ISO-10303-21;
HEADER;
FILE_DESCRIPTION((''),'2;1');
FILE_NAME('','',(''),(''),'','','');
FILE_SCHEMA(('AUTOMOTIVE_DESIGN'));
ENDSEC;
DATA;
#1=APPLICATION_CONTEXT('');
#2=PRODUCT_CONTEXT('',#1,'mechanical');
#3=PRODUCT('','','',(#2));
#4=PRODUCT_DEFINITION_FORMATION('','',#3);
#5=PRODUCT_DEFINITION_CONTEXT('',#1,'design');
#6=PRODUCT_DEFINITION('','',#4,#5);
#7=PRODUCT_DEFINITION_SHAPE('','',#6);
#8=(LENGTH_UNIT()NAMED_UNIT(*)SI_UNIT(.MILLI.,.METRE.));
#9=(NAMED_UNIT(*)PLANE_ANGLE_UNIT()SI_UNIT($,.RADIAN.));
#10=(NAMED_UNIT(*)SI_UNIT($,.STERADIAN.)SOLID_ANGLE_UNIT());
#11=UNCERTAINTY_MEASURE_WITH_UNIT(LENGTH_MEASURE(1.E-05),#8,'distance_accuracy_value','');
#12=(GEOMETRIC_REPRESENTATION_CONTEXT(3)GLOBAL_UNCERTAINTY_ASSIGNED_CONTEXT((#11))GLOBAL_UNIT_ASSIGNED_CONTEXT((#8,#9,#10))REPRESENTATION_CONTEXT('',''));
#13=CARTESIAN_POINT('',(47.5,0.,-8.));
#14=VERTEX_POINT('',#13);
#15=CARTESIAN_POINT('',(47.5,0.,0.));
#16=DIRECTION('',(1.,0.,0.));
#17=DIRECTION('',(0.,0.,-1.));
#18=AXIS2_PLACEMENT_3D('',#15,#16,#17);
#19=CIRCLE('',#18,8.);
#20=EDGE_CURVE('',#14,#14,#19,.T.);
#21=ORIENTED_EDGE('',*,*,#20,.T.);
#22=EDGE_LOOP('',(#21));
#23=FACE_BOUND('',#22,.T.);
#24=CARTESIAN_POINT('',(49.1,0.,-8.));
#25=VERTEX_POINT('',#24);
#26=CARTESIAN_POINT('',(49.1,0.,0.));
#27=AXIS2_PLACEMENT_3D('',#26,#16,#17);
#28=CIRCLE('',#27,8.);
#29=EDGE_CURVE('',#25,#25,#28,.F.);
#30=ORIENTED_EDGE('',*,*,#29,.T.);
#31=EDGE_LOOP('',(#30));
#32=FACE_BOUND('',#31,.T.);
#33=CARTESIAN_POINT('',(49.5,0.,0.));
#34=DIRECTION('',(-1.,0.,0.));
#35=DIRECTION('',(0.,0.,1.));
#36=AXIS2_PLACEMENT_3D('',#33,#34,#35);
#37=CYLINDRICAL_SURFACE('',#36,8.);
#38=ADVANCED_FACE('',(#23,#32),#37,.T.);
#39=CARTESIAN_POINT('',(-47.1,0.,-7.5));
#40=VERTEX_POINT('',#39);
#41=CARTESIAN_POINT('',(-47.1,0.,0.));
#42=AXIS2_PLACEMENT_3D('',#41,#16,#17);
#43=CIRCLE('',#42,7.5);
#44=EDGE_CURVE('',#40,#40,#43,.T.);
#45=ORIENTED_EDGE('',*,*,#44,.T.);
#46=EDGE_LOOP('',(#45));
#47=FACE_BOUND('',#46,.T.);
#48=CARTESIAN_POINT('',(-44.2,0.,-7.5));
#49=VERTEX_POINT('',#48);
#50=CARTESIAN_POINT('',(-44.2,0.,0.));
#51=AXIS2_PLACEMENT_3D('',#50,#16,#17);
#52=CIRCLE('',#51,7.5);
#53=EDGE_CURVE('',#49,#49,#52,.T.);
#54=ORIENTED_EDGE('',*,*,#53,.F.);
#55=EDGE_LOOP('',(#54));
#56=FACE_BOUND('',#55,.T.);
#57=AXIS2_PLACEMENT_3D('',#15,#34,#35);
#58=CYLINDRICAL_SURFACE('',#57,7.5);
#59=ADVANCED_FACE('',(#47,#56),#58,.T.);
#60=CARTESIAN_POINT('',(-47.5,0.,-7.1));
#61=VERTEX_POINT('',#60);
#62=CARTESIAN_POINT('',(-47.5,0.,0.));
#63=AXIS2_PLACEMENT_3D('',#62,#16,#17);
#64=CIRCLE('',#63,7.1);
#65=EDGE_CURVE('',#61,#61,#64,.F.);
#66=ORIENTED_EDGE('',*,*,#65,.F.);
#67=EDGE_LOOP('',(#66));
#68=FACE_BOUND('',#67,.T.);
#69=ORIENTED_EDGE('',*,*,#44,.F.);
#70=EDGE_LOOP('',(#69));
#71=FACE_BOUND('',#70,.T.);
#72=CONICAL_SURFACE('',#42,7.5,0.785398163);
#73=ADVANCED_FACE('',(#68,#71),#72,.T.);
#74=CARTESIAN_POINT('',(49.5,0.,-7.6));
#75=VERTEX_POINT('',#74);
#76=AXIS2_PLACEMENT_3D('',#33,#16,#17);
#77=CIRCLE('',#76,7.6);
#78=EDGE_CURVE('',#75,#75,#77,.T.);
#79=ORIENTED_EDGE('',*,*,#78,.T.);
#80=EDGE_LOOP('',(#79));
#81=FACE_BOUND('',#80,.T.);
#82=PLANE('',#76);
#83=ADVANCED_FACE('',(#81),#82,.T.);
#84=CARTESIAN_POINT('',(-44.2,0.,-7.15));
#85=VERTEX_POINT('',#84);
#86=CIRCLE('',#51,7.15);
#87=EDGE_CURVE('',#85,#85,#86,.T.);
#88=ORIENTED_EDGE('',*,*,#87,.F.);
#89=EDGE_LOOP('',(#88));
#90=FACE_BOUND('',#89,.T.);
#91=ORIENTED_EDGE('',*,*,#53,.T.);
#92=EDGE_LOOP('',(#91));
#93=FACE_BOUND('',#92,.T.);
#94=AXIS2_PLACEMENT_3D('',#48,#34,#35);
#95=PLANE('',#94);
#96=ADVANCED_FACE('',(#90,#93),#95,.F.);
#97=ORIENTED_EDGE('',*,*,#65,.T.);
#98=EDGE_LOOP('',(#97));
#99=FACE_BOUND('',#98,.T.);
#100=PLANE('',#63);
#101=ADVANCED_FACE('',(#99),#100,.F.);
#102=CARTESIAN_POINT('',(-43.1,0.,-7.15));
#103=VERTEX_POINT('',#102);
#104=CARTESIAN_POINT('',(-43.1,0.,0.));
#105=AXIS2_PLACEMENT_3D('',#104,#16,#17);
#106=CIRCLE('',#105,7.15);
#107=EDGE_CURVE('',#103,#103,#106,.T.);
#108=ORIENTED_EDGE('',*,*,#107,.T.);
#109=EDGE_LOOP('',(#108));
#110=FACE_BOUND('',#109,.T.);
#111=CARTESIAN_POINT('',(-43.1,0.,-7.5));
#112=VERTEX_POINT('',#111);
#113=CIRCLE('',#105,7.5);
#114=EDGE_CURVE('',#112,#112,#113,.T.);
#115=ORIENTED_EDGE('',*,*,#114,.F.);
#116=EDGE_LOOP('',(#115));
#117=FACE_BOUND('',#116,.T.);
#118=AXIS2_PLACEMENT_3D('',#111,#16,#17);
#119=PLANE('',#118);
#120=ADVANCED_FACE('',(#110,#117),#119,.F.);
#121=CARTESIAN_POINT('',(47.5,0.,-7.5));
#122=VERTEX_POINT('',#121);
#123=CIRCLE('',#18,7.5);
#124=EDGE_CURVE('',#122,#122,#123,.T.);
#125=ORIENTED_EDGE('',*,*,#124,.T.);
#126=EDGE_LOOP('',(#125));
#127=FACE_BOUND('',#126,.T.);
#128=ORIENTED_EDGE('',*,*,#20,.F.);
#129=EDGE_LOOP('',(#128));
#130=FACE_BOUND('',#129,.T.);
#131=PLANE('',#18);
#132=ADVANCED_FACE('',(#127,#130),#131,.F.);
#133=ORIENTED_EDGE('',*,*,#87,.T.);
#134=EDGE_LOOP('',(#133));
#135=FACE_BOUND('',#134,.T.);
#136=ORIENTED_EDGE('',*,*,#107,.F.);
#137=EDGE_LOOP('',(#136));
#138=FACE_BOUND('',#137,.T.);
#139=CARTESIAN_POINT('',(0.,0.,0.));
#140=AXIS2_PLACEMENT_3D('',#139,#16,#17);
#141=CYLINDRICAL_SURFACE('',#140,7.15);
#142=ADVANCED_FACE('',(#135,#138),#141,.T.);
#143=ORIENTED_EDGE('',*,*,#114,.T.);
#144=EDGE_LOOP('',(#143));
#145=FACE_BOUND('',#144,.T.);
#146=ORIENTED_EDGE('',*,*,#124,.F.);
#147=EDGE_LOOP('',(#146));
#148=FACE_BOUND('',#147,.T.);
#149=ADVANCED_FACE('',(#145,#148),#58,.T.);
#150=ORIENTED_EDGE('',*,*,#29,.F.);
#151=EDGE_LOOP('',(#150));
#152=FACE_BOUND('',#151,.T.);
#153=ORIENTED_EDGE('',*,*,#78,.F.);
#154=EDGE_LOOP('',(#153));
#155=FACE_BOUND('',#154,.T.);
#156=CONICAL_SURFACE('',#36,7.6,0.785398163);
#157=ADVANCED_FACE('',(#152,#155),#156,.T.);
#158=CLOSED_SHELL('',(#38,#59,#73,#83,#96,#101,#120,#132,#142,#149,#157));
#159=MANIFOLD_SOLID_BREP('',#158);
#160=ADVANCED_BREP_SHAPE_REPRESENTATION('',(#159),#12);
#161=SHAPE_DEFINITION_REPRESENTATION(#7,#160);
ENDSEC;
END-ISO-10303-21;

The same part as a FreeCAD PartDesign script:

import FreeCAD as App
import Part
import Sketcher
Q = App.Units.Quantity


def edges_at(feature, points):
    """Names of the edges that pass closest to the given points."""
    edges = feature.Shape.Edges
    near = lambda p: min(range(len(edges)), key=lambda i: edges[i].distToShape(Part.Vertex(*p))[0])
    return sorted({f"Edge{near(p) + 1}" for p in points})

doc = App.newDocument("Part")
params = doc.addObject("Spreadsheet::Sheet", "Params")
for row, (alias, value) in enumerate([
    ("sketch1_diameter", "15 mm"),
    ("pad1_length", "95 mm"),
    ("sketch2_diameter", "16 mm"),
    ("pad2_length", "2 mm"),
    ("sketch3_width", "1.1 mm"),
    ("sketch3_height", "0.35 mm"),
    ("groove_angle", "360 deg"),
    ("chamfer_size", "0.4 mm"),
], start=1):
    params.set(f"A{row}", alias)
    params.set(f"B{row}", "=" + value)
    params.setAlias(f"B{row}", alias)

body = doc.addObject("PartDesign::Body", "Body")

sketch1 = body.newObject("Sketcher::SketchObject", "Sketch")
sketch1.AttachmentSupport = (doc.getObject("YZ_Plane"), [""])
sketch1.MapMode = "FlatFace"
sketch1.addGeometry(Part.Circle(App.Vector(0, 0, 0), App.Vector(0, 0, 1), 8), False)
sketch1.addConstraint(Sketcher.Constraint("Coincident", 0, 3, -1, 1))
sketch1.addConstraint(Sketcher.Constraint("Diameter", 0, Q("15 mm")))
sketch1.setExpression("Constraints[1]", "Params.sketch1_diameter")
pad1 = body.newObject("PartDesign::Pad", "Pad")
pad1.Profile = sketch1
pad1.setExpression("Length", "Params.pad1_length")
pad1.Midplane = True

sketch2 = body.newObject("Sketcher::SketchObject", "Sketch001")
sketch2.AttachmentSupport = (doc.getObject("YZ_Plane"), [""])
sketch2.MapMode = "FlatFace"
sketch2.AttachmentOffset = App.Placement(App.Vector(0, 0, 47.5), App.Rotation())
sketch2.addGeometry(Part.Circle(App.Vector(0, 0, 0), App.Vector(0, 0, 1), 8), False)
sketch2.addConstraint(Sketcher.Constraint("Coincident", 0, 3, -1, 1))
sketch2.addConstraint(Sketcher.Constraint("Diameter", 0, Q("16 mm")))
sketch2.setExpression("Constraints[1]", "Params.sketch2_diameter")
pad2 = body.newObject("PartDesign::Pad", "Pad001")
pad2.Profile = sketch2
pad2.setExpression("Length", "Params.pad2_length")

sketch3 = body.newObject("Sketcher::SketchObject", "Sketch002")
sketch3.AttachmentSupport = (doc.getObject("XZ_Plane"), [""])
sketch3.MapMode = "FlatFace"
sketch3.addGeometry(Part.LineSegment(App.Vector(-44.2, -7.5, 0), App.Vector(-44.2, -7.15, 0)), False)
sketch3.addGeometry(Part.LineSegment(App.Vector(-44.2, -7.15, 0), App.Vector(-43.1, -7.15, 0)), False)
sketch3.addGeometry(Part.LineSegment(App.Vector(-43.1, -7.15, 0), App.Vector(-43.1, -7.5, 0)), False)
sketch3.addGeometry(Part.LineSegment(App.Vector(-43.1, -7.5, 0), App.Vector(-44.2, -7.5, 0)), False)
sketch3.addConstraint(Sketcher.Constraint("Coincident", 0, 2, 1, 1))
sketch3.addConstraint(Sketcher.Constraint("Coincident", 1, 2, 2, 1))
sketch3.addConstraint(Sketcher.Constraint("Coincident", 2, 2, 3, 1))
sketch3.addConstraint(Sketcher.Constraint("Coincident", 3, 2, 0, 1))
sketch3.addConstraint(Sketcher.Constraint("Vertical", 0))
sketch3.addConstraint(Sketcher.Constraint("Horizontal", 1))
sketch3.addConstraint(Sketcher.Constraint("Vertical", 2))
sketch3.addConstraint(Sketcher.Constraint("Horizontal", 3))
sketch3.addConstraint(Sketcher.Constraint("DistanceX", 1, 1, 1, 2, Q("1.1 mm")))
sketch3.addConstraint(Sketcher.Constraint("DistanceY", 0, 1, 0, 2, Q("0.35 mm")))
sketch3.addConstraint(Sketcher.Constraint("DistanceX", 0, 2, -1, 1, Q("44.2 mm")))
sketch3.addConstraint(Sketcher.Constraint("DistanceY", 2, 2, -1, 1, Q("7.5 mm")))
sketch3.setExpression("Constraints[8]", "Params.sketch3_width")
sketch3.setExpression("Constraints[9]", "Params.sketch3_height")
groove = body.newObject("PartDesign::Groove", "Groove")
groove.Profile = sketch3
groove.ReferenceAxis = (sketch3, ["H_Axis"])
groove.setExpression("Angle", "Params.groove_angle")
doc.recompute()

chamfer = body.newObject("PartDesign::Chamfer", "Chamfer")
chamfer.Base = (groove, edges_at(groove, [(-47.5, 0, 7.5), (49.5, 0, 8)]))
chamfer.setExpression("Size", "Params.chamfer_size")

doc.recompute()
